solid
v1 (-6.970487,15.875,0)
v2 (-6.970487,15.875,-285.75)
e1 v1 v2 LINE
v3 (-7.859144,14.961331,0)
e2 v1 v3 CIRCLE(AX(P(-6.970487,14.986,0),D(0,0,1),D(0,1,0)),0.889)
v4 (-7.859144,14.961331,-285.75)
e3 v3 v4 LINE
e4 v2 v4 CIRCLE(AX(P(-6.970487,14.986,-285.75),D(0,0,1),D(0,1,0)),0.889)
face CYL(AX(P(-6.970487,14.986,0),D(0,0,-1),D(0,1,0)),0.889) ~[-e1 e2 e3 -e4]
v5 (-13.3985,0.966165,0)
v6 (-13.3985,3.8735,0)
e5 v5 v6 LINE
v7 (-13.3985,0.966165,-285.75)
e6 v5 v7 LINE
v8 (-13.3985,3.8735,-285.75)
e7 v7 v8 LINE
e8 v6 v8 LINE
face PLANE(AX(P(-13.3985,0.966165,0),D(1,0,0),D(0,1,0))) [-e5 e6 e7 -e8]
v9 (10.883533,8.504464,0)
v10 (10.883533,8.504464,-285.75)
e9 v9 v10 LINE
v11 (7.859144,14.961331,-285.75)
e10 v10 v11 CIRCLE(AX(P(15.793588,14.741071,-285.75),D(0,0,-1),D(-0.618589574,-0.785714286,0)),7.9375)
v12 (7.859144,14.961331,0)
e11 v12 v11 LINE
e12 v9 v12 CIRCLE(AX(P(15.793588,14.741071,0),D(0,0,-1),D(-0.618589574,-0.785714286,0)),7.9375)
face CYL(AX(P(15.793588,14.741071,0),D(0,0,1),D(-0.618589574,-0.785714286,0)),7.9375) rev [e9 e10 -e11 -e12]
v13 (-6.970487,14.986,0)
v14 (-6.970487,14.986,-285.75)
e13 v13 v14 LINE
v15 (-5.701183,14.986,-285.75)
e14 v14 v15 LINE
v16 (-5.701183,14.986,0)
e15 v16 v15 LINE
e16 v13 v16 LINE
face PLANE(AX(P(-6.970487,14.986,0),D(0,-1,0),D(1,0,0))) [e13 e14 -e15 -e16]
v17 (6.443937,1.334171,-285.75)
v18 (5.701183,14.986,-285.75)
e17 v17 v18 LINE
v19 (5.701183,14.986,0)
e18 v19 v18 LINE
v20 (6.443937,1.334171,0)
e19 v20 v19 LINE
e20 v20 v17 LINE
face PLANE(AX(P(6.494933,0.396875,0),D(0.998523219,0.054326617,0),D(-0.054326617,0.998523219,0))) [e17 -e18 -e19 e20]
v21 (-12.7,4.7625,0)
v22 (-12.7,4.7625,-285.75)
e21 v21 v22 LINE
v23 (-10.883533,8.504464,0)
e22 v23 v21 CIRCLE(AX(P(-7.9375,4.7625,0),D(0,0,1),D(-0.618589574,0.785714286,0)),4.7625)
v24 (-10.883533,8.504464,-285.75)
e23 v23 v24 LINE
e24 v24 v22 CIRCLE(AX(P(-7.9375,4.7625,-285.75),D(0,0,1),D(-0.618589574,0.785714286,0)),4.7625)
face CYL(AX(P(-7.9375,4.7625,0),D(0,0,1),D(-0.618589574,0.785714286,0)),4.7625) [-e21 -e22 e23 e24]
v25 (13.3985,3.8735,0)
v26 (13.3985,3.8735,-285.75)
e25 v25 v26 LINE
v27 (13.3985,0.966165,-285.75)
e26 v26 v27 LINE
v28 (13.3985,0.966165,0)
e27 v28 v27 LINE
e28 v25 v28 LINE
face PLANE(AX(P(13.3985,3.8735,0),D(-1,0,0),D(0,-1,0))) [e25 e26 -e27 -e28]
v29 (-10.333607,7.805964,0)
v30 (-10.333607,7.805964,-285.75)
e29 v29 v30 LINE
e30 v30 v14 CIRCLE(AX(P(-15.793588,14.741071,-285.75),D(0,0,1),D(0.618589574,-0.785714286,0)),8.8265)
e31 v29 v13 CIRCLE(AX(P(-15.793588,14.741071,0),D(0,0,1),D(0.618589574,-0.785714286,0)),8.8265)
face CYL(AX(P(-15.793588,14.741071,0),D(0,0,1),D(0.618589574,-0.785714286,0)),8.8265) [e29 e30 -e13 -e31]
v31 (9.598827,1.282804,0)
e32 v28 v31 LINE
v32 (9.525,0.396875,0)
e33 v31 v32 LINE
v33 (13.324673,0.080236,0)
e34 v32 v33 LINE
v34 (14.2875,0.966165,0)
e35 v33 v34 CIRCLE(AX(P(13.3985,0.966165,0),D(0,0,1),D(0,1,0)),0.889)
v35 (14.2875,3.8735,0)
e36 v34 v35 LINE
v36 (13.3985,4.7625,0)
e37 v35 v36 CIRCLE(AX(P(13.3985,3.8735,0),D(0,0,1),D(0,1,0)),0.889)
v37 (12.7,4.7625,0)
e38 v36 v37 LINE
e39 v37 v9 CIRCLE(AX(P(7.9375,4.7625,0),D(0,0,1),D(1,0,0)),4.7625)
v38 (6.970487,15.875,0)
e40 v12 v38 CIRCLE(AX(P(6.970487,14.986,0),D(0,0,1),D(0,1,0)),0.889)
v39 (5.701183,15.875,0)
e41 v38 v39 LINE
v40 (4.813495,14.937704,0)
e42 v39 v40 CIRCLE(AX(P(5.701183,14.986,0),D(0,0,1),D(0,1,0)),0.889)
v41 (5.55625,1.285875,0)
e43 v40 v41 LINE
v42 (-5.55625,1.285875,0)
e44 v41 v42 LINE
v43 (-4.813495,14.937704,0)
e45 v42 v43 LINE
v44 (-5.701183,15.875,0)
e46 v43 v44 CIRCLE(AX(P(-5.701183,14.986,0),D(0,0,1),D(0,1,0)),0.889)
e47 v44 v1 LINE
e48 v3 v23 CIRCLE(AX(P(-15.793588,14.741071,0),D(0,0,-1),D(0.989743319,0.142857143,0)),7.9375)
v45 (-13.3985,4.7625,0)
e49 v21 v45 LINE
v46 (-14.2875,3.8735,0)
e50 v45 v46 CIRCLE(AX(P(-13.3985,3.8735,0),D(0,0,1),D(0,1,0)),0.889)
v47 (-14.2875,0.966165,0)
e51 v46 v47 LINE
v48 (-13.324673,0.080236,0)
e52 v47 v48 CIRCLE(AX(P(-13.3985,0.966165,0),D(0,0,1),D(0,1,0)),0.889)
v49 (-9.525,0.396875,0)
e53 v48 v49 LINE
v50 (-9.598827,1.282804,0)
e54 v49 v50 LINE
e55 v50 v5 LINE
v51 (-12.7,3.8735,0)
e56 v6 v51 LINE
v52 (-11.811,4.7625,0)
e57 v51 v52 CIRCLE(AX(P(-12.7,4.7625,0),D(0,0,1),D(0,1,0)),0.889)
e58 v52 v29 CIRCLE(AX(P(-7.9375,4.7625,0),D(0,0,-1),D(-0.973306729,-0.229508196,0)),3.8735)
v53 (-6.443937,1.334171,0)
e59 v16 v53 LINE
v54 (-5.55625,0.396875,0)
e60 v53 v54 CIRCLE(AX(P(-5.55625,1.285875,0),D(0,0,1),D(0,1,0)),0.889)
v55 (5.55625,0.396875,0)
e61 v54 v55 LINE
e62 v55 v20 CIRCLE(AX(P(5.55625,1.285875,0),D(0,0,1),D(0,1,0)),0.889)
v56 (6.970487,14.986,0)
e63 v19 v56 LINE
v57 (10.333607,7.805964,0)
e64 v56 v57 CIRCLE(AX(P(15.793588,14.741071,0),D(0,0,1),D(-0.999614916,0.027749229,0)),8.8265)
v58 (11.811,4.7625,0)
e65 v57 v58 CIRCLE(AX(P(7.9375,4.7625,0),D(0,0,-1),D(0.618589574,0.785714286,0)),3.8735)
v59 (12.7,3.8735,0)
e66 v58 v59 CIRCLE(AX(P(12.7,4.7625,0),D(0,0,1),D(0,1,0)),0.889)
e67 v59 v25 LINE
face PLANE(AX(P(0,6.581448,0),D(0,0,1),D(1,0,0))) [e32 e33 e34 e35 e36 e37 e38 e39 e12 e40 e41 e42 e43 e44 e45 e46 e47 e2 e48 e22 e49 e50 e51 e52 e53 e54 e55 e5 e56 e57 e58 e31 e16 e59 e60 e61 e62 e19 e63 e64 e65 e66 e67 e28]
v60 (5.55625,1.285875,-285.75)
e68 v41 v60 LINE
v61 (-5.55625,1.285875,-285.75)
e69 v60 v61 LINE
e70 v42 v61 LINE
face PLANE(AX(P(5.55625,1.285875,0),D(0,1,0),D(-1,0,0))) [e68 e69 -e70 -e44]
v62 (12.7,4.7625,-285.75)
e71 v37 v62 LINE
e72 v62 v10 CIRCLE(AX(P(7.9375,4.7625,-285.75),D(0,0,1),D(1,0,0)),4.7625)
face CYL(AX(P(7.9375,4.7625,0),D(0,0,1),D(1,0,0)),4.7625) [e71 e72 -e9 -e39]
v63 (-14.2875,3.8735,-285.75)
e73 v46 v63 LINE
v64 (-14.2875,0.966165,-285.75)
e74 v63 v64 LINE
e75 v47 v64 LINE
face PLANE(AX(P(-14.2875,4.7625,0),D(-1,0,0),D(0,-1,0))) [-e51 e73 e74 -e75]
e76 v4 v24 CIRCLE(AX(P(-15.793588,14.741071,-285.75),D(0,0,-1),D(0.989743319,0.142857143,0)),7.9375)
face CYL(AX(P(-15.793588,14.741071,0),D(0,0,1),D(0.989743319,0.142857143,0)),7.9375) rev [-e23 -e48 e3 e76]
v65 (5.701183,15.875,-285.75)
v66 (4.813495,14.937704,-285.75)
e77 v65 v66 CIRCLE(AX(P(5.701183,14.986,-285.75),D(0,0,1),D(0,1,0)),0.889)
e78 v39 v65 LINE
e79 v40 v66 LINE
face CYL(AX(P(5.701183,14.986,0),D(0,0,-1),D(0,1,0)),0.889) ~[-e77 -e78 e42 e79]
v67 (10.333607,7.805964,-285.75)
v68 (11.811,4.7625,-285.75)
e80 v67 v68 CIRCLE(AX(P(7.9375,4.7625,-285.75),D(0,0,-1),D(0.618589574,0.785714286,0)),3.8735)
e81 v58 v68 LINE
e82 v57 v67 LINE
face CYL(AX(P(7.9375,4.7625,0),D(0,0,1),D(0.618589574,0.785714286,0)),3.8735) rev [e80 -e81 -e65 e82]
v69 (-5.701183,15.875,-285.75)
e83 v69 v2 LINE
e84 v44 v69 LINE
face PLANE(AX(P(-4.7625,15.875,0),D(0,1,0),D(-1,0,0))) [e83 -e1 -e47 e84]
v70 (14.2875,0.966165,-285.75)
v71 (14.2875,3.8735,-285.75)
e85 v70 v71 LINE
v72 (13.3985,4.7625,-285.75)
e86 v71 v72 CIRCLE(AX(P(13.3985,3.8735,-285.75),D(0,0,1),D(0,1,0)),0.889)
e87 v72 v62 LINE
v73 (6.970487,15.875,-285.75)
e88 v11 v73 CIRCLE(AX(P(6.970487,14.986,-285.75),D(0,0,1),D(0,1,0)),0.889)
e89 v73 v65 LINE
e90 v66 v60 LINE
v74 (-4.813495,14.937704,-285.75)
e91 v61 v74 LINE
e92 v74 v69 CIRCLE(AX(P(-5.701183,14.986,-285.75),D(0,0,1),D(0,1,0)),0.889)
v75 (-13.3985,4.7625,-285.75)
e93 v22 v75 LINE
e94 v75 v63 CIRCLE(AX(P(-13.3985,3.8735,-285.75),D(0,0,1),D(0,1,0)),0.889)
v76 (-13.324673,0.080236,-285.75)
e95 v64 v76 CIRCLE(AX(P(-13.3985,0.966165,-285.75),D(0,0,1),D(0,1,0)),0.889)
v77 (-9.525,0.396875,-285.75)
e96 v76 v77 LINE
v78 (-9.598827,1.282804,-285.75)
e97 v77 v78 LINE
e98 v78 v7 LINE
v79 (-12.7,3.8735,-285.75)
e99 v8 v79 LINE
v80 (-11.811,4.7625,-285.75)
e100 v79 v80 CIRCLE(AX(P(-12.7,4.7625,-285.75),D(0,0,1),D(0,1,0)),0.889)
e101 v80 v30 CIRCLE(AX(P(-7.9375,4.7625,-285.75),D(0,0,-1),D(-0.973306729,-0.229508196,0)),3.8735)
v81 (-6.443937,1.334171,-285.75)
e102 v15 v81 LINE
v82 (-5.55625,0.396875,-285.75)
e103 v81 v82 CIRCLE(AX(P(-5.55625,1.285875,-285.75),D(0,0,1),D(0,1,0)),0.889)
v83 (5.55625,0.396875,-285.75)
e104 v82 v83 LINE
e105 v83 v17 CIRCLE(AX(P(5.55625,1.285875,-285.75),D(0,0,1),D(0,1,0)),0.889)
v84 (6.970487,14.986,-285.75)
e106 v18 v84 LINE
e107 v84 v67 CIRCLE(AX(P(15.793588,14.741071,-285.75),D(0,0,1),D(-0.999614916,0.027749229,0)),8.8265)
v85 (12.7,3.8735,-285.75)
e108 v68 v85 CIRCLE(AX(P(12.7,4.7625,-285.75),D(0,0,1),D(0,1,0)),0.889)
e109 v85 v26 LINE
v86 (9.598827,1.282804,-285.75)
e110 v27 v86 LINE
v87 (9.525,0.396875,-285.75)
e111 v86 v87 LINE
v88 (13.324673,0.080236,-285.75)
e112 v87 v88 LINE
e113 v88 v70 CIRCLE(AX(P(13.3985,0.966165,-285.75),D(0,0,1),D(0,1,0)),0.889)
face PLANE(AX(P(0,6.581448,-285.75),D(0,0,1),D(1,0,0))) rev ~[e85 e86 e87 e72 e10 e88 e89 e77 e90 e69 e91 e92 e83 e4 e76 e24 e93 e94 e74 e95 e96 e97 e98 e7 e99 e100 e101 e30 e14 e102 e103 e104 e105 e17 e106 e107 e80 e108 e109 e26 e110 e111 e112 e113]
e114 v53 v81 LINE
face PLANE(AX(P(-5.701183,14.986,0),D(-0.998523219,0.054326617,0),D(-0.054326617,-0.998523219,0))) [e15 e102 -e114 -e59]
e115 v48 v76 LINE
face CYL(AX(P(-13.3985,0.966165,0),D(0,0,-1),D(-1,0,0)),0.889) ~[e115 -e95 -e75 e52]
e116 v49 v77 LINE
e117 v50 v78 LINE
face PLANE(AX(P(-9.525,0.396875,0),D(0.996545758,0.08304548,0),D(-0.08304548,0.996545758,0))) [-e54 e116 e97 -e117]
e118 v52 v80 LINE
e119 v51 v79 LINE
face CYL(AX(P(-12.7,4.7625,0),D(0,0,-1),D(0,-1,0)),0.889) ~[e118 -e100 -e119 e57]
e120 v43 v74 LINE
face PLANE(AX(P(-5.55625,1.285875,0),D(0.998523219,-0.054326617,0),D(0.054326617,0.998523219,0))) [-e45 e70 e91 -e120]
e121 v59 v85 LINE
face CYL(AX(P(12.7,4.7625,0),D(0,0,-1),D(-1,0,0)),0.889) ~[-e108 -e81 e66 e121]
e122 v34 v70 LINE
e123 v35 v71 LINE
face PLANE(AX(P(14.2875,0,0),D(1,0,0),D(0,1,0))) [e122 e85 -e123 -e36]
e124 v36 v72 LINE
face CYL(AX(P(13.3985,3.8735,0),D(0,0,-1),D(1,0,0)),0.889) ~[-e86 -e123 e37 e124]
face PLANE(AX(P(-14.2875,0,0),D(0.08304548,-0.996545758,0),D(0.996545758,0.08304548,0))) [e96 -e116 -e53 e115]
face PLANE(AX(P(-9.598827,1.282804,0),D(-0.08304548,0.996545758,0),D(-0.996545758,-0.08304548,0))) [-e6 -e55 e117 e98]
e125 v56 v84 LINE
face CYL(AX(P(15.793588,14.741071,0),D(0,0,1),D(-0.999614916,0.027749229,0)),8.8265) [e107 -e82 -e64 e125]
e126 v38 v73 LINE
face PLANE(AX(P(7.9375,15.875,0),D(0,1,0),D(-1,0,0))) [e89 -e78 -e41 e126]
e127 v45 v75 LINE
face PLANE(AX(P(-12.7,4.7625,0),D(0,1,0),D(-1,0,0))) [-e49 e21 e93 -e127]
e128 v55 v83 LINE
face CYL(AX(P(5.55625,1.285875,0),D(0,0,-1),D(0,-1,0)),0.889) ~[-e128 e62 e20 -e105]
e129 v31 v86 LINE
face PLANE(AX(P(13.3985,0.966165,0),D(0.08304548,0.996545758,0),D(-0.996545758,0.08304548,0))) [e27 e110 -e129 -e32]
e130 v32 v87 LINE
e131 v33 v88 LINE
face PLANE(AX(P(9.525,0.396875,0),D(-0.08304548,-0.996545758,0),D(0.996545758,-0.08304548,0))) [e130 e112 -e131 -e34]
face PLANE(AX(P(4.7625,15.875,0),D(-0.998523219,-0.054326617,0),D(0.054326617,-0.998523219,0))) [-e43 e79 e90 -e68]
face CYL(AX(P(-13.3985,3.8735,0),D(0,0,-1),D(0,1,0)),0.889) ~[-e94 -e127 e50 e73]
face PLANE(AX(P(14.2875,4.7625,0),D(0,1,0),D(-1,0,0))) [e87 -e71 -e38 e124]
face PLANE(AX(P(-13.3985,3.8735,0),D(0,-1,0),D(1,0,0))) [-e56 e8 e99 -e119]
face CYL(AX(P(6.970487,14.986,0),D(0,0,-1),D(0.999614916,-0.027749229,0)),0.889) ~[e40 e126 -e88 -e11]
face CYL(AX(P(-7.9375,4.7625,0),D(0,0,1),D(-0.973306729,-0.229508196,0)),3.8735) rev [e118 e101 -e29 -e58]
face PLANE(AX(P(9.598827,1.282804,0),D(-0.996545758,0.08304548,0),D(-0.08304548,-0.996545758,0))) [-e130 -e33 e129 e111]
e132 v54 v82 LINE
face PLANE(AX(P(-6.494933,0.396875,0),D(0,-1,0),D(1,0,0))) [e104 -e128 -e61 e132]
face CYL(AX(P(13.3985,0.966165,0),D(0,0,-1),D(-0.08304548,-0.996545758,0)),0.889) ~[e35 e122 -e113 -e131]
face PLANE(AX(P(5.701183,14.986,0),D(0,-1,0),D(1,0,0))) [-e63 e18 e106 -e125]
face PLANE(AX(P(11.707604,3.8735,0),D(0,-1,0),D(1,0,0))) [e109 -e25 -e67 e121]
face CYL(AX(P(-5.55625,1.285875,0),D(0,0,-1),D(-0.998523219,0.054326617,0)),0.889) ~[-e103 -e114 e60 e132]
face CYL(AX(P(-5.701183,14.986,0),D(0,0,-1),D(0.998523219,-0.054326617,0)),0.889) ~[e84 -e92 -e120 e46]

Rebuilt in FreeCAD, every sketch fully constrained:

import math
import FreeCAD as App
import Part
import Sketcher
from FreeCAD import Vector
Q = App.Units.Quantity


def edges_at(feature, points):
    """Names of the edges that pass closest to the given points."""
    edges = feature.Shape.Edges
    near = lambda p: min(range(len(edges)), key=lambda i: edges[i].distToShape(Part.Vertex(*p))[0])
    return sorted({f"Edge{near(p) + 1}" for p in points})

doc = App.newDocument("Part")
body = doc.addObject("PartDesign::Body", "Body")

# Sketch on XY plane
sketch1 = body.newObject("Sketcher::SketchObject", "Sketch")
sketch1.AttachmentSupport = (doc.getObject("XY_Plane"), [""])
sketch1.MapMode = "FlatFace"
sketch1.addGeometry(Part.LineSegment(Vector(9.5, 0.4, 0), Vector(14.3, 0, 0)), False)
sketch1.addGeometry(Part.LineSegment(Vector(14.3, 0, 0), Vector(14.3, 4.8, 0)), False)
sketch1.addGeometry(Part.LineSegment(Vector(14.3, 4.8, 0), Vector(12.7, 4.8, 0)), False)
sketch1.addGeometry(Part.ArcOfCircle(Part.Circle(Vector(7.9, 4.8, 0), Vector(0, 0, 1), 4.8), math.radians(0), math.radians(52)), False)
sketch1.addGeometry(Part.ArcOfCircle(Part.Circle(Vector(15.8, 14.7, 0), Vector(0, 0, 1), 7.9), math.radians(172), math.radians(232)), False)
sketch1.addGeometry(Part.LineSegment(Vector(7.9, 15.9, 0), Vector(4.8, 15.9, 0)), False)
sketch1.addGeometry(Part.LineSegment(Vector(4.8, 15.9, 0), Vector(5.6, 1.3, 0)), False)
sketch1.addGeometry(Part.LineSegment(Vector(5.6, 1.3, 0), Vector(-5.6, 1.3, 0)), False)
sketch1.addGeometry(Part.LineSegment(Vector(-5.6, 1.3, 0), Vector(-4.8, 15.9, 0)), False)
sketch1.addGeometry(Part.LineSegment(Vector(-4.8, 15.9, 0), Vector(-7.9, 15.9, 0)), False)
sketch1.addGeometry(Part.ArcOfCircle(Part.Circle(Vector(-15.8, 14.7, 0), Vector(0, 0, 1), 7.9), math.radians(-52), math.radians(8)), False)
sketch1.addGeometry(Part.ArcOfCircle(Part.Circle(Vector(-7.9, 4.8, 0), Vector(0, 0, 1), 4.8), math.radians(128), math.radians(180)), False)
sketch1.addGeometry(Part.LineSegment(Vector(-12.7, 4.8, 0), Vector(-14.3, 4.8, 0)), False)
sketch1.addGeometry(Part.LineSegment(Vector(-14.3, 4.8, 0), Vector(-14.3, 0, 0)), False)
sketch1.addGeometry(Part.LineSegment(Vector(-14.3, 0, 0), Vector(-9.5, 0.4, 0)), False)
sketch1.addGeometry(Part.LineSegment(Vector(-9.5, 0.4, 0), Vector(-9.6, 1.3, 0)), False)
sketch1.addGeometry(Part.LineSegment(Vector(-9.6, 1.3, 0), Vector(-13.4, 1, 0)), False)
sketch1.addGeometry(Part.LineSegment(Vector(-13.4, 1, 0), Vector(-13.4, 3.9, 0)), False)
sketch1.addGeometry(Part.LineSegment(Vector(-13.4, 3.9, 0), Vector(-11.7, 3.9, 0)), False)
sketch1.addGeometry(Part.ArcOfCircle(Part.Circle(Vector(-7.9, 4.8, 0), Vector(0, 0, 1), 3.9), math.radians(128), math.radians(193)), False)
sketch1.addGeometry(Part.ArcOfCircle(Part.Circle(Vector(-15.8, 14.7, 0), Vector(0, 0, 1), 8.8), math.radians(-52), math.radians(2)), False)
sketch1.addGeometry(Part.LineSegment(Vector(-7, 15, 0), Vector(-5.7, 15, 0)), False)
sketch1.addGeometry(Part.LineSegment(Vector(-5.7, 15, 0), Vector(-6.5, 0.4, 0)), False)
sketch1.addGeometry(Part.LineSegment(Vector(-6.5, 0.4, 0), Vector(6.5, 0.4, 0)), False)
sketch1.addGeometry(Part.LineSegment(Vector(6.5, 0.4, 0), Vector(5.7, 15, 0)), False)
sketch1.addGeometry(Part.LineSegment(Vector(5.7, 15, 0), Vector(7, 15, 0)), False)
sketch1.addGeometry(Part.ArcOfCircle(Part.Circle(Vector(15.8, 14.7, 0), Vector(0, 0, 1), 8.8), math.radians(178), math.radians(232)), False)
sketch1.addGeometry(Part.ArcOfCircle(Part.Circle(Vector(7.9, 4.8, 0), Vector(0, 0, 1), 3.9), math.radians(-13), math.radians(52)), False)
sketch1.addGeometry(Part.LineSegment(Vector(11.7, 3.9, 0), Vector(13.4, 3.9, 0)), False)
sketch1.addGeometry(Part.LineSegment(Vector(13.4, 3.9, 0), Vector(13.4, 1, 0)), False)
sketch1.addGeometry(Part.LineSegment(Vector(13.4, 1, 0), Vector(9.6, 1.3, 0)), False)
sketch1.addGeometry(Part.LineSegment(Vector(9.6, 1.3, 0), Vector(9.5, 0.4, 0)), False)
sketch1.addConstraint(Sketcher.Constraint("Coincident", 0, 2, 1, 1))
sketch1.addConstraint(Sketcher.Constraint("Coincident", 1, 2, 2, 1))
sketch1.addConstraint(Sketcher.Constraint("Coincident", 2, 2, 3, 1))
sketch1.addConstraint(Sketcher.Constraint("Tangent", 3, 2, 4, 2))
sketch1.addConstraint(Sketcher.Constraint("Coincident", 4, 1, 5, 1))
sketch1.addConstraint(Sketcher.Constraint("Coincident", 5, 2, 6, 1))
sketch1.addConstraint(Sketcher.Constraint("Coincident", 6, 2, 7, 1))
sketch1.addConstraint(Sketcher.Constraint("Coincident", 7, 2, 8, 1))
sketch1.addConstraint(Sketcher.Constraint("Coincident", 8, 2, 9, 1))
sketch1.addConstraint(Sketcher.Constraint("Coincident", 9, 2, 10, 2))
sketch1.addConstraint(Sketcher.Constraint("Tangent", 10, 1, 11, 1))
sketch1.addConstraint(Sketcher.Constraint("Coincident", 11, 2, 12, 1))
sketch1.addConstraint(Sketcher.Constraint("Coincident", 12, 2, 13, 1))
sketch1.addConstraint(Sketcher.Constraint("Coincident", 13, 2, 14, 1))
sketch1.addConstraint(Sketcher.Constraint("Coincident", 14, 2, 15, 1))
sketch1.addConstraint(Sketcher.Constraint("Coincident", 15, 2, 16, 1))
sketch1.addConstraint(Sketcher.Constraint("Coincident", 16, 2, 17, 1))
sketch1.addConstraint(Sketcher.Constraint("Coincident", 17, 2, 18, 1))
sketch1.addConstraint(Sketcher.Constraint("Coincident", 18, 2, 19, 2))
sketch1.addConstraint(Sketcher.Constraint("Tangent", 19, 1, 20, 1))
sketch1.addConstraint(Sketcher.Constraint("Coincident", 20, 2, 21, 1))
sketch1.addConstraint(Sketcher.Constraint("Coincident", 21, 2, 22, 1))
sketch1.addConstraint(Sketcher.Constraint("Coincident", 22, 2, 23, 1))
sketch1.addConstraint(Sketcher.Constraint("Coincident", 23, 2, 24, 1))
sketch1.addConstraint(Sketcher.Constraint("Coincident", 24, 2, 25, 1))
sketch1.addConstraint(Sketcher.Constraint("Coincident", 25, 2, 26, 1))
sketch1.addConstraint(Sketcher.Constraint("Tangent", 26, 2, 27, 2))
sketch1.addConstraint(Sketcher.Constraint("Coincident", 27, 1, 28, 1))
sketch1.addConstraint(Sketcher.Constraint("Coincident", 28, 2, 29, 1))
sketch1.addConstraint(Sketcher.Constraint("Coincident", 29, 2, 30, 1))
sketch1.addConstraint(Sketcher.Constraint("Coincident", 30, 2, 31, 1))
sketch1.addConstraint(Sketcher.Constraint("Coincident", 31, 2, 0, 1))
sketch1.addConstraint(Sketcher.Constraint("Vertical", 1))
sketch1.addConstraint(Sketcher.Constraint("Horizontal", 2))
sketch1.addConstraint(Sketcher.Constraint("Horizontal", 5))
sketch1.addConstraint(Sketcher.Constraint("Horizontal", 7))
sketch1.addConstraint(Sketcher.Constraint("Horizontal", 9))
sketch1.addConstraint(Sketcher.Constraint("Horizontal", 12))
sketch1.addConstraint(Sketcher.Constraint("Vertical", 13))
sketch1.addConstraint(Sketcher.Constraint("Vertical", 17))
sketch1.addConstraint(Sketcher.Constraint("Horizontal", 18))
sketch1.addConstraint(Sketcher.Constraint("Horizontal", 21))
sketch1.addConstraint(Sketcher.Constraint("Horizontal", 23))
sketch1.addConstraint(Sketcher.Constraint("Horizontal", 25))
sketch1.addConstraint(Sketcher.Constraint("Horizontal", 28))
sketch1.addConstraint(Sketcher.Constraint("Vertical", 29))
sketch1.addConstraint(Sketcher.Constraint("Coincident", 19, 3, 11, 3))
sketch1.addConstraint(Sketcher.Constraint("Coincident", 20, 3, 10, 3))
sketch1.addConstraint(Sketcher.Constraint("Coincident", 26, 3, 4, 3))
sketch1.addConstraint(Sketcher.Constraint("Coincident", 27, 3, 3, 3))
sketch1.addConstraint(Sketcher.Constraint("Equal", 4, 10))
sketch1.addConstraint(Sketcher.Constraint("Equal", 3, 11))
sketch1.addConstraint(Sketcher.Constraint("Equal", 20, 26))
sketch1.addConstraint(Sketcher.Constraint("Symmetric", 0, 2, 13, 2, -1, 1))
sketch1.addConstraint(Sketcher.Constraint("Symmetric", 4, 3, 10, 3, -2))
sketch1.addConstraint(Sketcher.Constraint("Symmetric", 5, 2, 8, 2, -2))
sketch1.addConstraint(Sketcher.Constraint("Symmetric", 2, 2, 11, 2, -2))
sketch1.addConstraint(Sketcher.Constraint("Symmetric", 21, 2, 24, 2, -2))
sketch1.addConstraint(Sketcher.Constraint("Symmetric", 17, 2, 28, 2, -2))
sketch1.addConstraint(Sketcher.Constraint("Symmetric", 15, 2, 30, 2, -2))
sketch1.addConstraint(Sketcher.Constraint("Symmetric", 14, 2, 31, 2, -2))
sketch1.addConstraint(Sketcher.Constraint("PointOnObject", 0, 2, -1))
sketch1.addConstraint(Sketcher.Constraint("Perpendicular", 14, 15))
sketch1.addConstraint(Sketcher.Constraint("Perpendicular", 15, 16))
sketch1.addConstraint(Sketcher.Constraint("Parallel", 8, 22))
sketch1.addConstraint(Sketcher.Constraint("Parallel", 6, 24))
sketch1.addConstraint(Sketcher.Constraint("Parallel", 0, 30))
sketch1.addConstraint(Sketcher.Constraint("Horizontal", 27, 3, 1, 2))
sketch1.addConstraint(Sketcher.Constraint("Horizontal", 14, 2, 22, 2))
sketch1.addConstraint(Sketcher.Constraint("Vertical", 27, 3, 4, 1))
sketch1.addConstraint(Sketcher.Constraint("Equal", 6, 8))
sketch1.addConstraint(Sketcher.Constraint("Equal", 8, 22))
sketch1.addConstraint(Sketcher.Constraint("Radius", 3, Q("0.1875 in")))
sketch1.addConstraint(Sketcher.Constraint("Radius", 4, Q("0.3125 in")))
sketch1.addConstraint(Sketcher.Constraint("DistanceX", -1, 1, 2, 2, Q("0.5 in")))
sketch1.addConstraint(Sketcher.Constraint("Radius", 19, Q("0.1525 in")))
sketch1.addConstraint(Sketcher.Constraint("DistanceX", 2, 2, 2, 1, Q("0.0625 in")))
sketch1.addConstraint(Sketcher.Constraint("DistanceX", 5, 2, 5, 1, Q("0.125 in")))
sketch1.addConstraint(Sketcher.Constraint("DistanceX", 7, 2, 7, 1, Q("0.4375 in")))
sketch1.addConstraint(Sketcher.Constraint("DistanceY", 1, 1, 1, 2, Q("0.1875 in")))
sketch1.addConstraint(Sketcher.Constraint("DistanceY", -1, 1, 20, 2, Q("0.59 in")))
sketch1.addConstraint(Sketcher.Constraint("Distance", 15, Q("0.035 in")))
sketch1.addConstraint(Sketcher.Constraint("DistanceY", -1, 1, 4, 1, Q("0.625 in")))
sketch1.addConstraint(Sketcher.Constraint("DistanceX", 14, 2, -1, 1, Q("0.375 in")))
sketch1.addConstraint(Sketcher.Constraint("DistanceY", -1, 1, 14, 2, Q("0.015625 in")))
sketch1.addConstraint(Sketcher.Constraint("DistanceX", 13, 2, 16, 2, Q("0.035 in")))
sketch1.addConstraint(Sketcher.Constraint("DistanceY", 17, 2, 11, 2, Q("0.035 in")))
sketch1.addConstraint(Sketcher.Constraint("DistanceX", 21, 1, 21, 2, 1.269304))
pad1 = body.newObject("PartDesign::Pad", "Pad")
pad1.Profile = sketch1
pad1.Length = Q("11.25 in")
pad1.Reversed = True
doc.recompute()

fillet = body.newObject("PartDesign::Fillet", "Fillet")
fillet.Base = (pad1, edges_at(pad1, [
    (11.708, 3.873, -142.875),
    (6.495, 0.397, -142.875),
    (-6.495, 0.397, -142.875),
    (-11.708, 3.873, -142.875),
    (-14.287, 0, -142.875),
    (-14.287, 4.763, -142.875),
    (-7.938, 15.875, -142.875),
    (-4.763, 15.875, -142.875),
    (4.763, 15.875, -142.875),
    (7.938, 15.875, -142.875),
    (14.287, 4.763, -142.875),
    (14.287, 0, -142.875),
]))
fillet.Radius = Q("0.035 in")

doc.recompute()
